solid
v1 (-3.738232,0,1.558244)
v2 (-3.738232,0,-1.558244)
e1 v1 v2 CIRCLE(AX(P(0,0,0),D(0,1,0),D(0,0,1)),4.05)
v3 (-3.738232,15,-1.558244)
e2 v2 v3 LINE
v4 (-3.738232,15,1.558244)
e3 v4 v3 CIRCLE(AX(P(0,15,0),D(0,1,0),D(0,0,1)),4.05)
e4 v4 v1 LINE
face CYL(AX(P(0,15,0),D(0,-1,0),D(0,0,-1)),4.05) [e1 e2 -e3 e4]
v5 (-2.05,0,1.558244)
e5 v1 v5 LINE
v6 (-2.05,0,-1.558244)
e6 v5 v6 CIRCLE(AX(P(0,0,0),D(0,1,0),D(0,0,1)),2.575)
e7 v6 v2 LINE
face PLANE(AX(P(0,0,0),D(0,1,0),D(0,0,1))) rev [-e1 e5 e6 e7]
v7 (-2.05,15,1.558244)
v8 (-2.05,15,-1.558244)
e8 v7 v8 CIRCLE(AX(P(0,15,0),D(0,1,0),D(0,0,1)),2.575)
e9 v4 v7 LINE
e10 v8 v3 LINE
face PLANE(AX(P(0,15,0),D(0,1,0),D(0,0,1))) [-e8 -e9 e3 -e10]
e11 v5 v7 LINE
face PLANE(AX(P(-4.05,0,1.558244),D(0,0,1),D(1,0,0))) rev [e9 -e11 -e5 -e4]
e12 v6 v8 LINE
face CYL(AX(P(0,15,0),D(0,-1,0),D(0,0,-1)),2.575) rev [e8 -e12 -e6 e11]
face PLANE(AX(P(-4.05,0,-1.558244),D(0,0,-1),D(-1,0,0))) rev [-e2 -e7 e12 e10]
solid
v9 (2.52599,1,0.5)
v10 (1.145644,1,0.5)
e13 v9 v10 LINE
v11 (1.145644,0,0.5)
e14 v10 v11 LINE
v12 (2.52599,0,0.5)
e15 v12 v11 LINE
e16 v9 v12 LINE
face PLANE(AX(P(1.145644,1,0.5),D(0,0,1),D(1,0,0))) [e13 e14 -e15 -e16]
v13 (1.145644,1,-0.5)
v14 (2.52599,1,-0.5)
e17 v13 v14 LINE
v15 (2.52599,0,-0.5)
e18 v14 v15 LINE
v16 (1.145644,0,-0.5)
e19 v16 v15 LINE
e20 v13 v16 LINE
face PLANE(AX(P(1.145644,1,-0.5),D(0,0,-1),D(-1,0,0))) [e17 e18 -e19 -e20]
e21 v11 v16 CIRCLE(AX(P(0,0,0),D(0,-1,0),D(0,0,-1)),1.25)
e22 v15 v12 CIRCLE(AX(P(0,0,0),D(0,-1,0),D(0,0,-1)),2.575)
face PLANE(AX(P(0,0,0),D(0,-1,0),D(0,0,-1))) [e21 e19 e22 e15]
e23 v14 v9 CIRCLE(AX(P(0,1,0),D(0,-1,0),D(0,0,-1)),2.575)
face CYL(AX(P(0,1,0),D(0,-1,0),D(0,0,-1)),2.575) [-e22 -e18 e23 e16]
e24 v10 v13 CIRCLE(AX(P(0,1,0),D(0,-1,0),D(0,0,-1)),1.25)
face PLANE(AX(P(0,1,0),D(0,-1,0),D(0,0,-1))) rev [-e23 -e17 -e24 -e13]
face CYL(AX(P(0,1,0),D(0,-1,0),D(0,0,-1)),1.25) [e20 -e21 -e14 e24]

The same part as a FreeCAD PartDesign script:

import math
import FreeCAD as App
import Part
import Sketcher
Q = App.Units.Quantity

doc = App.newDocument("Part")
body = doc.addObject("PartDesign::Body", "Body")

# Sketch on XZ plane
sketch1 = doc.addObject("Sketcher::SketchObject", "Sketch")
body.addObject(sketch1)
sketch1.AttachmentSupport = (doc.XZ_Plane, [""])
sketch1.MapMode = "FlatFace"
sketch1.addGeometry(Part.Circle(App.Vector(0, 0, 0), App.Vector(0, 0, 1), 4), False)
sketch1.addGeometry(Part.Circle(App.Vector(0, 0, 0), App.Vector(0, 0, 1), 2.6), False)
sketch1.addConstraint(Sketcher.Constraint("Coincident", 0, 3, -1, 1))
sketch1.addConstraint(Sketcher.Constraint("Coincident", 1, 3, -1, 1))
sketch1.addConstraint(Sketcher.Constraint("Diameter", 0, Q("8.1 mm")))
sketch1.addConstraint(Sketcher.Constraint("Diameter", 1, Q("5.15 mm")))
pad1 = doc.addObject("PartDesign::Pad", "Pad")
body.addObject(pad1)
pad1.Profile = sketch1
pad1.Length = 15
pad1.Reversed = True

# Sketch on XZ plane
sketch2 = doc.addObject("Sketcher::SketchObject", "Sketch001")
body.addObject(sketch2)
sketch2.AttachmentSupport = (doc.XZ_Plane, [""])
sketch2.MapMode = "FlatFace"
sketch2.AttachmentOffset = App.Placement(App.Vector(0, 0, -15), App.Rotation())
sketch2.addGeometry(Part.LineSegment(App.Vector(-4, -1.6, 0), App.Vector(-4, 1.6, 0)), False)
sketch2.addGeometry(Part.LineSegment(App.Vector(-4, 1.6, 0), App.Vector(-2, 1.6, 0)), False)
sketch2.addGeometry(Part.LineSegment(App.Vector(-2, 1.6, 0), App.Vector(-2, -1.6, 0)), False)
sketch2.addGeometry(Part.LineSegment(App.Vector(-2, -1.6, 0), App.Vector(-4, -1.6, 0)), False)
sketch2.addConstraint(Sketcher.Constraint("Coincident", 0, 2, 1, 1))
sketch2.addConstraint(Sketcher.Constraint("Coincident", 1, 2, 2, 1))
sketch2.addConstraint(Sketcher.Constraint("Coincident", 2, 2, 3, 1))
sketch2.addConstraint(Sketcher.Constraint("Coincident", 3, 2, 0, 1))
sketch2.addConstraint(Sketcher.Constraint("Vertical", 0))
sketch2.addConstraint(Sketcher.Constraint("Horizontal", 1))
sketch2.addConstraint(Sketcher.Constraint("Vertical", 2))
sketch2.addConstraint(Sketcher.Constraint("Horizontal", 3))
sketch2.addConstraint(Sketcher.Constraint("DistanceX", 1, 1, 1, 2, Q("2 mm")))
sketch2.addConstraint(Sketcher.Constraint("DistanceX", 0, 2, -1, 1, Q("4.05 mm")))
sketch2.addConstraint(Sketcher.Constraint("DistanceY", 0, 1, 0, 2, Q("3.116488 mm")))
sketch2.addConstraint(Sketcher.Constraint("DistanceY", -1, 1, 0, 2, Q("1.558244 mm")))
pocket1 = doc.addObject("PartDesign::Pocket", "Pocket")
body.addObject(pocket1)
pocket1.Profile = sketch2
pocket1.Length = 15
pocket1.Reversed = True
body2 = doc.addObject("PartDesign::Body", "Body001")

# Sketch on XZ plane
sketch3 = doc.addObject("Sketcher::SketchObject", "Sketch002")
body2.addObject(sketch3)
sketch3.AttachmentSupport = (doc.getObject("XZ_Plane001"), [""])
sketch3.MapMode = "FlatFace"
sketch3.addGeometry(Part.LineSegment(App.Vector(2.5, 0.5, 0), App.Vector(1.1, 0.5, 0)), False)
sketch3.addGeometry(Part.ArcOfCircle(Part.Circle(App.Vector(0, 0, 0), App.Vector(0, 0, 1), 1.2), math.radians(24), math.radians(336)), False)
sketch3.addGeometry(Part.LineSegment(App.Vector(1.1, -0.5, 0), App.Vector(2.5, -0.5, 0)), False)
sketch3.addGeometry(Part.ArcOfCircle(Part.Circle(App.Vector(0, 0, 0), App.Vector(0, 0, 1), 2.6), math.radians(-11), math.radians(11)), False)
sketch3.addConstraint(Sketcher.Constraint("Coincident", 0, 2, 1, 1))
sketch3.addConstraint(Sketcher.Constraint("Coincident", 1, 2, 2, 1))
sketch3.addConstraint(Sketcher.Constraint("Coincident", 2, 2, 3, 1))
sketch3.addConstraint(Sketcher.Constraint("Coincident", 3, 2, 0, 1))
sketch3.addConstraint(Sketcher.Constraint("Horizontal", 0))
sketch3.addConstraint(Sketcher.Constraint("Horizontal", 2))
sketch3.addConstraint(Sketcher.Constraint("Coincident", 1, 3, -1, 1))
sketch3.addConstraint(Sketcher.Constraint("Coincident", 3, 3, -1, 1))
sketch3.addConstraint(Sketcher.Constraint("Vertical", 0, 2, 1, 2))
sketch3.addConstraint(Sketcher.Constraint("Radius", 1, Q("1.25 mm")))
sketch3.addConstraint(Sketcher.Constraint("Radius", 3, Q("2.575 mm")))
sketch3.addConstraint(Sketcher.Constraint("DistanceY", 1, 2, 0, 2, Q("1 mm")))
pad2 = doc.addObject("PartDesign::Pad", "Pad001")
body2.addObject(pad2)
pad2.Profile = sketch3
pad2.Length = 1
pad2.Reversed = True

doc.recompute()
